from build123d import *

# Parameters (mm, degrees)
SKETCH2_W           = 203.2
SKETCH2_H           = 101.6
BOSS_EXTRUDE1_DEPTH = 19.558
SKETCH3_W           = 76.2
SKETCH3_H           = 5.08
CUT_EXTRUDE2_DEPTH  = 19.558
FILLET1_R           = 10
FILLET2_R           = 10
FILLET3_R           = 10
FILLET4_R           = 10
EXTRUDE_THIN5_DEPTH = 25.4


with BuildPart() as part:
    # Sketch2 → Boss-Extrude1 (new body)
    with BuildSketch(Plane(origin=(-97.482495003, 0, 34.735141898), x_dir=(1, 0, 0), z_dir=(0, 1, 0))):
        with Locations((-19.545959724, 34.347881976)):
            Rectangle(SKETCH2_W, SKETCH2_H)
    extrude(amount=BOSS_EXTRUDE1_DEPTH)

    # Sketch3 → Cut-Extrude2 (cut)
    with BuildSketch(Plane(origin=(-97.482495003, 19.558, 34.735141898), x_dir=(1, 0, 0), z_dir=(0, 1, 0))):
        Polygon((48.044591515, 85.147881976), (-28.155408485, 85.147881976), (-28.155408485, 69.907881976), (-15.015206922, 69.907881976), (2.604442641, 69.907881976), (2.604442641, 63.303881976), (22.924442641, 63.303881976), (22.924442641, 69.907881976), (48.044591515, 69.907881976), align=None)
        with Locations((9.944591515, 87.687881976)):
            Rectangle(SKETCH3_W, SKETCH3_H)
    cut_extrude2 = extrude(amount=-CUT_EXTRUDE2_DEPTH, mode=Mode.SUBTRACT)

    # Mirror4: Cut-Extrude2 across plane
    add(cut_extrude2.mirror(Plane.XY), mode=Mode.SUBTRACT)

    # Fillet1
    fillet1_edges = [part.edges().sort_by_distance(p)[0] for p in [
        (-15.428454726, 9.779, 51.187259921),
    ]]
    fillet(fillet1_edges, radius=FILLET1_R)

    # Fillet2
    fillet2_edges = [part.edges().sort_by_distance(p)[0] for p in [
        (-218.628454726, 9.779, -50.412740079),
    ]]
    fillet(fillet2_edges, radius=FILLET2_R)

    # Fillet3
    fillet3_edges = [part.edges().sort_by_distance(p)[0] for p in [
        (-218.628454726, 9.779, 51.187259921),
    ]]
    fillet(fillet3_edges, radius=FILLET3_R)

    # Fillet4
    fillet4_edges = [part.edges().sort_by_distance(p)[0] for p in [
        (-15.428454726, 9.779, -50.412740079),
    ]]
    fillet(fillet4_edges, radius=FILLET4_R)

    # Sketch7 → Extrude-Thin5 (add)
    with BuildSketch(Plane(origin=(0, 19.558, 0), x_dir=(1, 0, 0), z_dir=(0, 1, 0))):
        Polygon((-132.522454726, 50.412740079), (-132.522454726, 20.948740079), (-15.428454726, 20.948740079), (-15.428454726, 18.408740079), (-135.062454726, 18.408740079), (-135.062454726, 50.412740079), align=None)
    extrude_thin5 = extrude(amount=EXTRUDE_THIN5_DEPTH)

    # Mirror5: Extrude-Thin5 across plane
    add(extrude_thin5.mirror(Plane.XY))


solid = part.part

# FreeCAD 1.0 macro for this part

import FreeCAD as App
import Part
import Sketcher
from FreeCAD import Vector
Q = App.Units.Quantity


def edges_at(feature, points):
    """Names of the edges that pass closest to the given points."""
    edges = feature.Shape.Edges
    near = lambda p: min(range(len(edges)), key=lambda i: edges[i].distToShape(Part.Vertex(*p))[0])
    return sorted({f"Edge{near(p) + 1}" for p in points})


def add_polygon(sketch, points):
    """Adds a closed chain of lines whose ends are joined by coincident constraints."""
    first, n = sketch.GeometryCount, len(points)
    for a, b in zip(points, points[1:] + points[:1]):
        sketch.addGeometry(Part.LineSegment(App.Vector(*a, 0), App.Vector(*b, 0)), False)
    for i in range(n):
        sketch.addConstraint(Sketcher.Constraint("Coincident", first + i, 2, first + (i + 1) % n, 1))

doc = App.newDocument("Part")
body = doc.addObject("PartDesign::Body", "Body")

sketch1 = doc.addObject("Sketcher::SketchObject", "Sketch")
body.addObject(sketch1)
sketch1.AttachmentSupport = (doc.XZ_Plane, [""])
sketch1.MapMode = "FlatFace"
add_polygon(sketch1, [(-218.628455, -50.41274), (-218.628455, 51.18726), (-15.428455, 51.18726), (-15.428455, -50.41274)])
sketch1.addConstraint(Sketcher.Constraint("Vertical", 0))
sketch1.addConstraint(Sketcher.Constraint("Horizontal", 1))
sketch1.addConstraint(Sketcher.Constraint("Vertical", 2))
sketch1.addConstraint(Sketcher.Constraint("Horizontal", 3))
sketch1.addConstraint(Sketcher.Constraint("DistanceX", 1, 1, 1, 2, Q("8 in")))
sketch1.addConstraint(Sketcher.Constraint("DistanceY", 0, 1, 0, 2, Q("4 in")))
sketch1.addConstraint(Sketcher.Constraint("DistanceY", -1, 1, 0, 2, 51.18726))
sketch1.addConstraint(Sketcher.Constraint("DistanceX", 0, 2, -1, 1, 218.628455))
pad1 = doc.addObject("PartDesign::Pad", "Pad")
body.addObject(pad1)
pad1.Profile = sketch1
pad1.Length = Q("0.77 in")
pad1.Reversed = True

sketch2 = doc.addObject("Sketcher::SketchObject", "Sketch001")
body.addObject(sketch2)
sketch2.AttachmentSupport = (doc.XZ_Plane, [""])
sketch2.MapMode = "FlatFace"
sketch2.AttachmentOffset = App.Placement(Vector(0, 0, -0.77 * 25.4), App.Rotation())
add_polygon(sketch2, [(-125.637903, -35.17274), (-94.878052, -35.17274), (-94.878052, -28.56874), (-74.558052, -28.56874), (-74.558052, -35.17274), (-49.437903, -35.17274), (-49.437903, -55.49274), (-125.637903, -55.49274)])
sketch2.addConstraint(Sketcher.Constraint("Horizontal", 0))
sketch2.addConstraint(Sketcher.Constraint("Vertical", 1))
sketch2.addConstraint(Sketcher.Constraint("Horizontal", 2))
sketch2.addConstraint(Sketcher.Constraint("Vertical", 3))
sketch2.addConstraint(Sketcher.Constraint("Horizontal", 4))
sketch2.addConstraint(Sketcher.Constraint("Vertical", 5))
sketch2.addConstraint(Sketcher.Constraint("Horizontal", 6))
sketch2.addConstraint(Sketcher.Constraint("Vertical", 7))
sketch2.addConstraint(Sketcher.Constraint("Horizontal", 0, 2, 3, 2))
sketch2.addConstraint(Sketcher.Constraint("Equal", 2, 5))
sketch2.addConstraint(Sketcher.Constraint("DistanceX", 6, 2, 6, 1, Q("3 in")))
sketch2.addConstraint(Sketcher.Constraint("DistanceX", 2, 1, 2, 2, Q("0.8 in")))
sketch2.addConstraint(Sketcher.Constraint("DistanceY", 1, 1, 1, 2, Q("0.26 in")))
sketch2.addConstraint(Sketcher.Constraint("DistanceX", 0, 1, 0, 2, 30.759851))
sketch2.addConstraint(Sketcher.Constraint("DistanceY", 0, 2, -1, 1, 35.17274))
sketch2.addConstraint(Sketcher.Constraint("DistanceX", 0, 2, -1, 1, 94.878052))
pocket1 = doc.addObject("PartDesign::Pocket", "Pocket")
body.addObject(pocket1)
pocket1.Profile = sketch2
pocket1.Length = Q("0.77 in")
pocket1.Reversed = True
doc.recompute()

mirrored = doc.addObject("PartDesign::Mirrored", "Mirrored")
body.addObject(mirrored)
mirrored.Originals = [pocket1]
mirrored.MirrorPlane = (doc.XY_Plane, [""])
body.Tip = mirrored
doc.recompute()

fillet = doc.addObject("PartDesign::Fillet", "Fillet")
body.addObject(fillet)
fillet.Base = (mirrored, edges_at(mirrored, [(-15.428, 9.779, 51.187)]))
fillet.Radius = 10
doc.recompute()

fillet2 = doc.addObject("PartDesign::Fillet", "Fillet001")
body.addObject(fillet2)
fillet2.Base = (fillet, edges_at(fillet, [(-218.628, 9.779, -50.413)]))
fillet2.Radius = 10
doc.recompute()

fillet3 = doc.addObject("PartDesign::Fillet", "Fillet002")
body.addObject(fillet3)
fillet3.Base = (fillet2, edges_at(fillet2, [(-218.628, 9.779, 51.187)]))
fillet3.Radius = 10
doc.recompute()

fillet4 = doc.addObject("PartDesign::Fillet", "Fillet003")
body.addObject(fillet4)
fillet4.Base = (fillet3, edges_at(fillet3, [(-15.428, 9.779, -50.413)]))
fillet4.Radius = 10

sketch3 = doc.addObject("Sketcher::SketchObject", "Sketch002")
body.addObject(sketch3)
sketch3.AttachmentSupport = (doc.XZ_Plane, [""])
sketch3.MapMode = "FlatFace"
sketch3.AttachmentOffset = App.Placement(Vector(0, 0, -0.77 * 25.4), App.Rotation())
add_polygon(sketch3, [(-132.522455, -20.94874), (-132.522455, -50.41274), (-135.062455, -50.41274), (-135.062455, -18.40874), (-15.428455, -18.40874), (-15.428455, -20.94874)])
sketch3.addConstraint(Sketcher.Constraint("Vertical", 0))
sketch3.addConstraint(Sketcher.Constraint("Horizontal", 1))
sketch3.addConstraint(Sketcher.Constraint("Vertical", 2))
sketch3.addConstraint(Sketcher.Constraint("Horizontal", 3))
sketch3.addConstraint(Sketcher.Constraint("Vertical", 4))
sketch3.addConstraint(Sketcher.Constraint("Horizontal", 5))
sketch3.addConstraint(Sketcher.Constraint("Equal", 1, 4))
sketch3.addConstraint(Sketcher.Constraint("DistanceX", 1, 2, 1, 1, Q("0.1 in")))
sketch3.addConstraint(Sketcher.Constraint("DistanceX", 3, 1, 3, 2, Q("4.71 in")))
sketch3.addConstraint(Sketcher.Constraint("DistanceY", 0, 2, 0, 1, Q("1.16 in")))
sketch3.addConstraint(Sketcher.Constraint("DistanceY", 0, 2, -1, 1, 50.41274))
sketch3.addConstraint(Sketcher.Constraint("DistanceX", 0, 2, -1, 1, 132.522455))
pad2 = doc.addObject("PartDesign::Pad", "Pad001")
body.addObject(pad2)
pad2.Profile = sketch3
pad2.Length = Q("1 in")
pad2.Reversed = True
doc.recompute()

mirrored2 = doc.addObject("PartDesign::Mirrored", "Mirrored001")
body.addObject(mirrored2)
mirrored2.Originals = [pad2]
mirrored2.MirrorPlane = (doc.XY_Plane, [""])
body.Tip = mirrored2

doc.recompute()
